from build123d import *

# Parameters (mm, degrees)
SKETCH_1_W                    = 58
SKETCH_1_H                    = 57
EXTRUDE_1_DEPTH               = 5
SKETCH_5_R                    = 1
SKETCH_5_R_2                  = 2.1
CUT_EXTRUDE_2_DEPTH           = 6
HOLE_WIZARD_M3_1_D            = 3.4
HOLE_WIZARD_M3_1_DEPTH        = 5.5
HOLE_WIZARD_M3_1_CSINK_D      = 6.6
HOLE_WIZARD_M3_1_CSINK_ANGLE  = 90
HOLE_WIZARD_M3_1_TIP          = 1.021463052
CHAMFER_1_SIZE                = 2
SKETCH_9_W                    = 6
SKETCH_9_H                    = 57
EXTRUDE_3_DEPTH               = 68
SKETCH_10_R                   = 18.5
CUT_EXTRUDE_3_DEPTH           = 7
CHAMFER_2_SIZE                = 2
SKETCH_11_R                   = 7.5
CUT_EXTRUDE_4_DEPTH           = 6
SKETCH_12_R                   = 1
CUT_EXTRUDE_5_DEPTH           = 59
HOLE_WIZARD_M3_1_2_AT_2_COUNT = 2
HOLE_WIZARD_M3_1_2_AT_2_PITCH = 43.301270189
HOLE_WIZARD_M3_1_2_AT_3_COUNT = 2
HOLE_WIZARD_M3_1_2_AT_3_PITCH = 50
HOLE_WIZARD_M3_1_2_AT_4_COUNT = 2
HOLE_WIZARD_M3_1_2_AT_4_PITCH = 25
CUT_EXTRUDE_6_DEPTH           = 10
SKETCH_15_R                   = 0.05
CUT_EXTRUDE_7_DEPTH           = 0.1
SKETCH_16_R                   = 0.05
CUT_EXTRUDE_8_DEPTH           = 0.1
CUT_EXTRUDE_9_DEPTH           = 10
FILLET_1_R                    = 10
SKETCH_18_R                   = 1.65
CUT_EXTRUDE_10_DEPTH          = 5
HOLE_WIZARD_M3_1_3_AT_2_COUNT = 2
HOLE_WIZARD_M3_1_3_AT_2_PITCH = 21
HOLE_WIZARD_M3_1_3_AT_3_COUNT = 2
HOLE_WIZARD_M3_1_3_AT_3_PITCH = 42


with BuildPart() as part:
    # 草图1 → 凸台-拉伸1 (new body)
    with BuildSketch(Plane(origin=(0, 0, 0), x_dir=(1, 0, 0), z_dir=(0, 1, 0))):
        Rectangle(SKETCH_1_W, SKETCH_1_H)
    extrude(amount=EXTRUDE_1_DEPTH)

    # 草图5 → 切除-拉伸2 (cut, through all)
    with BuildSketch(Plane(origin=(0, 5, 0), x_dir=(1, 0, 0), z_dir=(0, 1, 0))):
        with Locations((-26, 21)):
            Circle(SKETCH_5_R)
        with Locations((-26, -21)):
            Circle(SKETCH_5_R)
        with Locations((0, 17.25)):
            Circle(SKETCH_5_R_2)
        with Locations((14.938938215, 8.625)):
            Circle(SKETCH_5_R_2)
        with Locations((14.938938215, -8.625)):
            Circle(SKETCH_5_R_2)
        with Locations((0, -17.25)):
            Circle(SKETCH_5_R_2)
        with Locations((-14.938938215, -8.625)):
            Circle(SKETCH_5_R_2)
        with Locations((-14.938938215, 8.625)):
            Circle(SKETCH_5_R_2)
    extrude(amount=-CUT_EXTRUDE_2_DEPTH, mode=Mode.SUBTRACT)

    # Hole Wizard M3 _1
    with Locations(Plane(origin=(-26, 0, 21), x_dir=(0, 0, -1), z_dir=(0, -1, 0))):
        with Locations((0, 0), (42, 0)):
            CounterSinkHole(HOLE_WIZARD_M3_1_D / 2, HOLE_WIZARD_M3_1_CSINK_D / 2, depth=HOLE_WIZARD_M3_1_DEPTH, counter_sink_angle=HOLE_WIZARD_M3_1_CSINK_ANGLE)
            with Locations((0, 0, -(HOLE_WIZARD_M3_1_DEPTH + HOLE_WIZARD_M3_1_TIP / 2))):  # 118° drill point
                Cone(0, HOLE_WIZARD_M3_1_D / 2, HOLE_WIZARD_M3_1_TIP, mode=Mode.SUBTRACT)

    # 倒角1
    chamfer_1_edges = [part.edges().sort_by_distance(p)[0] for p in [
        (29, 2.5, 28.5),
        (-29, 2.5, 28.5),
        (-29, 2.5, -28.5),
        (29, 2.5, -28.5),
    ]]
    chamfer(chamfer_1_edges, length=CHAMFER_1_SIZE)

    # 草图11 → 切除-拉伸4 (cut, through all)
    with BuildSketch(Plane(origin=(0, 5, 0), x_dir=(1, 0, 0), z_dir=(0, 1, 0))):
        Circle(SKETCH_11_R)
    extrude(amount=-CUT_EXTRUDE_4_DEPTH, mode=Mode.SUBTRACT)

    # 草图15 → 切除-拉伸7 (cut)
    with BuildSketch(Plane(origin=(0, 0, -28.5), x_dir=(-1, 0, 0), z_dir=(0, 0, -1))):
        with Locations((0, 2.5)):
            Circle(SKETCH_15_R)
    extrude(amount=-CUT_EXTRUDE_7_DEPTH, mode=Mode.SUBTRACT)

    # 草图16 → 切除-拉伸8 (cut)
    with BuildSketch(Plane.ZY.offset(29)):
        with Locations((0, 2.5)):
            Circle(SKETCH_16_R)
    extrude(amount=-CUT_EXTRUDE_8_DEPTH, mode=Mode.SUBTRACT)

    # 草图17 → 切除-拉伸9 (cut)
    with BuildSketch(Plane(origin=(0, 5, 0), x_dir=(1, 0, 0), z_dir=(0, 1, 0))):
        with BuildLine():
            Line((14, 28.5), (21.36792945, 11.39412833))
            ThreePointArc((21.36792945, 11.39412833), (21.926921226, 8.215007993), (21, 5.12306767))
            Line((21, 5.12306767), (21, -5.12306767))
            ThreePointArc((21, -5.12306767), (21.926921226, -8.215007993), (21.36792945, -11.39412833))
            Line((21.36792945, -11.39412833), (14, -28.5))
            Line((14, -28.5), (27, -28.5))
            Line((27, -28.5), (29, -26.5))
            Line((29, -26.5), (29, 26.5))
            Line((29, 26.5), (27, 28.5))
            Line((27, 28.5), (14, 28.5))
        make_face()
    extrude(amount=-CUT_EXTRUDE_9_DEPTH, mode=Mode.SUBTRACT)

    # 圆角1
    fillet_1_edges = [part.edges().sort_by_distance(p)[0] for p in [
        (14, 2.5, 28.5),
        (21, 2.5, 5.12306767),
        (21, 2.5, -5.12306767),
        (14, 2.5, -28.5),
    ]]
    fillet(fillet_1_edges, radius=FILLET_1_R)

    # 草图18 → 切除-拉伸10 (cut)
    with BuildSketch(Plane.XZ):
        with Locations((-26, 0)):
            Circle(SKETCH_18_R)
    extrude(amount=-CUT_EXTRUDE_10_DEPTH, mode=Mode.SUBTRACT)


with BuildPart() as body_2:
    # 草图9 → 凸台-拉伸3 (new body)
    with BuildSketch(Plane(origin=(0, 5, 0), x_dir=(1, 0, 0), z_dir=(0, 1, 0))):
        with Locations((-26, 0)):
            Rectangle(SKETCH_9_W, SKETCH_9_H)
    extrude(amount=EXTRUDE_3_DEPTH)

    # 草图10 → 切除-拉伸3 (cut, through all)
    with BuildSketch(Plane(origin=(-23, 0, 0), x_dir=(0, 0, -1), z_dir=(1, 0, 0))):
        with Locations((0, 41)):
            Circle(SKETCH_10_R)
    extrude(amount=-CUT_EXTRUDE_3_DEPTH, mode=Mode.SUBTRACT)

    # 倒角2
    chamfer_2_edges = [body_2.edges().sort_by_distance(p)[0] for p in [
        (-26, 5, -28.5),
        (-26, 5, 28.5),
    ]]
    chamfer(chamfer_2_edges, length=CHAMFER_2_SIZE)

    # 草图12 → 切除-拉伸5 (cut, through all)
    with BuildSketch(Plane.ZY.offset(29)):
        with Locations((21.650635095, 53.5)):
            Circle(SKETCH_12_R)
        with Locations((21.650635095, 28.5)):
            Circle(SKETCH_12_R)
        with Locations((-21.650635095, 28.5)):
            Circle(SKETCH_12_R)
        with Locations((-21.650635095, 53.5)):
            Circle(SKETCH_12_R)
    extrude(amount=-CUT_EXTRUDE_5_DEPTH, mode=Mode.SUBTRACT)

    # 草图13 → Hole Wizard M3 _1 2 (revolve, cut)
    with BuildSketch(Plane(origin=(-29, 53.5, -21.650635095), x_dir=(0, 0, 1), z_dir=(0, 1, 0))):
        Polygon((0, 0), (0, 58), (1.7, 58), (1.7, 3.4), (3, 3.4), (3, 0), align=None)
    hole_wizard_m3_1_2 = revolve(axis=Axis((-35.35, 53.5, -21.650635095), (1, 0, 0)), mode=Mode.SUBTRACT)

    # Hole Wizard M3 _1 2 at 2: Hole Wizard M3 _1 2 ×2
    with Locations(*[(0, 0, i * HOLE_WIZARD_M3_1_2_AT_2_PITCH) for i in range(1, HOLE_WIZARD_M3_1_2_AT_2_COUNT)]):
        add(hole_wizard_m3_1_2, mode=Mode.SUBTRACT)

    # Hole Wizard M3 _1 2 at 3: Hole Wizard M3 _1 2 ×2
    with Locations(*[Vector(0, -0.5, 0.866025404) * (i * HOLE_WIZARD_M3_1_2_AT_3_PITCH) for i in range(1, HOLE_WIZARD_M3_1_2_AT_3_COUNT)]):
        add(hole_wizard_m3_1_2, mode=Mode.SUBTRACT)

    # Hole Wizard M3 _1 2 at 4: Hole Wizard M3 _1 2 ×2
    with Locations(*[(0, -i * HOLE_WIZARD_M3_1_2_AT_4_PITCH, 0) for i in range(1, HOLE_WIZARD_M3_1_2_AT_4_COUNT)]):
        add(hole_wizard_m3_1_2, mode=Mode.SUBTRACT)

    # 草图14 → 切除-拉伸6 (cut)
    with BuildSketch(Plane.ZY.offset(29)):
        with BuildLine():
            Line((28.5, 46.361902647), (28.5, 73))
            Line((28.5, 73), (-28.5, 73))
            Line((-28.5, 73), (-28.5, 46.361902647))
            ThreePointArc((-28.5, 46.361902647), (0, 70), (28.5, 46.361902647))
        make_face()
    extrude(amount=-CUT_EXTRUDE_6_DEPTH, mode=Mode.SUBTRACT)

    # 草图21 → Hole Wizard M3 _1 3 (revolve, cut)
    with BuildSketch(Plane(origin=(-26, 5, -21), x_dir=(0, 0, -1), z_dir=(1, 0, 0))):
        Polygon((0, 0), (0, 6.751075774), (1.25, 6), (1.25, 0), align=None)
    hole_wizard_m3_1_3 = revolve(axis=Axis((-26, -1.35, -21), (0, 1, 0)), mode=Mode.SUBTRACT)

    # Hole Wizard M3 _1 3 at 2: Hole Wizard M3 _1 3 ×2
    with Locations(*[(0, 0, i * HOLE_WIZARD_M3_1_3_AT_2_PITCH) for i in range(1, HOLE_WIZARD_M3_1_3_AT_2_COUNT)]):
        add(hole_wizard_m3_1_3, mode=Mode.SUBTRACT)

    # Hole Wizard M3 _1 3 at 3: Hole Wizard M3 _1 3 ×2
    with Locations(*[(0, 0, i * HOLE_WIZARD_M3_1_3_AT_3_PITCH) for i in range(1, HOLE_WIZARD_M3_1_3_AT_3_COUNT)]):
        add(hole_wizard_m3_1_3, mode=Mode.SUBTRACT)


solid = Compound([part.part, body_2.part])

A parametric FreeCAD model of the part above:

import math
import FreeCAD as App
import Part
import Sketcher
from FreeCAD import Vector
Q = App.Units.Quantity


def edges_at(feature, points):
    """Names of the edges that pass closest to the given points."""
    edges = feature.Shape.Edges
    near = lambda p: min(range(len(edges)), key=lambda i: edges[i].distToShape(Part.Vertex(*p))[0])
    return sorted({f"Edge{near(p) + 1}" for p in points})


def add_polygon(sketch, points):
    """Adds a closed chain of lines whose ends are joined by coincident constraints."""
    first, n = sketch.GeometryCount, len(points)
    for a, b in zip(points, points[1:] + points[:1]):
        sketch.addGeometry(Part.LineSegment(App.Vector(*a, 0), App.Vector(*b, 0)), False)
    for i in range(n):
        sketch.addConstraint(Sketcher.Constraint("Coincident", first + i, 2, first + (i + 1) % n, 1))

doc = App.newDocument("Part")
body = doc.addObject("PartDesign::Body", "Body")

# Sketch on XZ plane
sketch1 = body.newObject("Sketcher::SketchObject", "Sketch")
sketch1.AttachmentSupport = (doc.getObject("XZ_Plane"), [""])
sketch1.MapMode = "FlatFace"
add_polygon(sketch1, [(-29, -28.5), (-29, 28.5), (29, 28.5), (29, -28.5)])  # lines 0-3
sketch1.addConstraint([
    Sketcher.Constraint("Vertical", 0),
    Sketcher.Constraint("Horizontal", 1),
    Sketcher.Constraint("Vertical", 2),
    Sketcher.Constraint("Horizontal", 3),
    Sketcher.Constraint("Symmetric", 0, 2, 2, 2, -1, 1),
    Sketcher.Constraint("DistanceX", 1, 1, 1, 2, 58.0),
    Sketcher.Constraint("DistanceY", 0, 1, 0, 2, 57.0),
])
pad1 = body.newObject("PartDesign::Pad", "Pad")
pad1.Profile = sketch1
pad1.Length = 5
pad1.Reversed = True

# Sketch on XZ plane
sketch2 = body.newObject("Sketcher::SketchObject", "Sketch001")
sketch2.AttachmentSupport = (doc.getObject("XZ_Plane"), [""])
sketch2.MapMode = "FlatFace"
sketch2.AttachmentOffset = App.Placement(Vector(0, 0, -5), App.Rotation())
sketch2.addGeometry([
    Part.Circle(Vector(-26, -21, 0), Vector(0, 0, 1), 1),  # 0
    Part.Circle(Vector(-26, 21, 0), Vector(0, 0, 1), 1),  # 1
    Part.Circle(Vector(0, -17.25, 0), Vector(0, 0, 1), 2.1),  # 2
    Part.Circle(Vector(14.938938, -8.625, 0), Vector(0, 0, 1), 2.1),  # 3
    Part.Circle(Vector(14.938938, 8.625, 0), Vector(0, 0, 1), 2.1),  # 4
    Part.Circle(Vector(0, 17.25, 0), Vector(0, 0, 1), 2.1),  # 5
    Part.Circle(Vector(-14.938938, 8.625, 0), Vector(0, 0, 1), 2.1),  # 6
    Part.Circle(Vector(-14.938938, -8.625, 0), Vector(0, 0, 1), 2.1),  # 7
], False)
sketch2.addConstraint([
    Sketcher.Constraint("Equal", 0, 1),
    Sketcher.Constraint("Equal", 2, 3),
    Sketcher.Constraint("Equal", 3, 4),
    Sketcher.Constraint("Equal", 4, 5),
    Sketcher.Constraint("Equal", 5, 6),
    Sketcher.Constraint("Equal", 6, 7),
    Sketcher.Constraint("Symmetric", 2, 3, 5, 3, -1, 1),
    Sketcher.Constraint("Symmetric", 3, 3, 6, 3, -1, 1),
    Sketcher.Constraint("Symmetric", 4, 3, 7, 3, -1, 1),
    Sketcher.Constraint("Symmetric", 4, 3, 6, 3, -2),
    Sketcher.Constraint("Symmetric", 0, 3, 1, 3, -1),
    Sketcher.Constraint("PointOnObject", 2, 3, -2),
    Sketcher.Constraint("Diameter", 0, 2.0),
    Sketcher.Constraint("Diameter", 2, 4.2),
    Sketcher.Constraint("DistanceX", 0, 3, -1, 1, 26.0),
    Sketcher.Constraint("DistanceY", 0, 3, -1, 1, 21.0),
    Sketcher.Constraint("DistanceY", 2, 3, 5, 3, 34.5),
    Sketcher.Constraint("DistanceY", 3, 3, 4, 3, 17.25),
    Sketcher.Constraint("DistanceX", -1, 1, 3, 3, 14.938938),
])
pocket1 = body.newObject("PartDesign::Pocket", "Pocket")
pocket1.Profile = sketch2
pocket1.Type = "ThroughAll"
pocket1.Reversed = True

# Sketch on XZ plane
sketch3 = body.newObject("Sketcher::SketchObject", "Sketch002")
sketch3.AttachmentSupport = (doc.getObject("XZ_Plane"), [""])
sketch3.MapMode = "FlatFace"
sketch3.addGeometry([
    Part.Circle(Vector(-26, 21, 0), Vector(0, 0, 1), 1.7),
    Part.Circle(Vector(-26, -21, 0), Vector(0, 0, 1), 1.7),
], False)
sketch3.addConstraint([
    Sketcher.Constraint("Equal", 0, 1),
    Sketcher.Constraint("Symmetric", 0, 3, 1, 3, -1),
    Sketcher.Constraint("Diameter", 0, 3.4),
    Sketcher.Constraint("DistanceX", 0, 3, -1, 1, 26.0),
    Sketcher.Constraint("DistanceY", -1, 1, 0, 3, 21.0),
])
doc.recompute()
hole = body.newObject("PartDesign::Hole", "Hole")
hole.Profile = sketch3
hole.ThreadType = "None"
hole.Diameter = 3.4
hole.DepthType = "Dimension"
hole.Depth = 5.5
hole.DrillPoint = "Angled"
hole.DrillPointAngle = 118
hole.HoleCutType = "Countersink"
hole.HoleCutDiameter = 6.6
hole.HoleCutCountersinkAngle = 90
doc.recompute()

chamfer = body.newObject("PartDesign::Chamfer", "Chamfer")
chamfer.Base = (hole, edges_at(hole, [
    (29, 2.5, 28.5),
    (-29, 2.5, 28.5),
    (-29, 2.5, -28.5),
    (29, 2.5, -28.5),
]))
chamfer.Size = 2

# Sketch on XZ plane
sketch4 = body.newObject("Sketcher::SketchObject", "Sketch003")
sketch4.AttachmentSupport = (doc.getObject("XZ_Plane"), [""])
sketch4.MapMode = "FlatFace"
sketch4.AttachmentOffset = App.Placement(Vector(0, 0, -5), App.Rotation())
sketch4.addGeometry(Part.Circle(Vector(0, 0, 0), Vector(0, 0, 1), 7.5), False)
sketch4.addConstraint([
    Sketcher.Constraint("Coincident", 0, 3, -1, 1),
    Sketcher.Constraint("Diameter", 0, 15.0),
])
pocket2 = body.newObject("PartDesign::Pocket", "Pocket001")
pocket2.Profile = sketch4
pocket2.Type = "ThroughAll"
pocket2.Reversed = True

# Sketch on XY plane
sketch5 = body.newObject("Sketcher::SketchObject", "Sketch004")
sketch5.AttachmentSupport = (doc.getObject("XY_Plane"), [""])
sketch5.MapMode = "FlatFace"
sketch5.AttachmentOffset = App.Placement(Vector(0, 0, -28.5), App.Rotation())
sketch5.addGeometry(Part.Circle(Vector(0, 2.5, 0), Vector(0, 0, 1), 0.05), False)
sketch5.addConstraint([
    Sketcher.Constraint("PointOnObject", 0, 3, -2),
    Sketcher.Constraint("Diameter", 0, 0.1),
    Sketcher.Constraint("DistanceY", -1, 1, 0, 3, 2.5),
])
pocket3 = body.newObject("PartDesign::Pocket", "Pocket002")
pocket3.Profile = sketch5
pocket3.Length = 0.1
pocket3.Reversed = True

# Sketch on YZ plane
sketch6 = body.newObject("Sketcher::SketchObject", "Sketch005")
sketch6.AttachmentSupport = (doc.getObject("YZ_Plane"), [""])
sketch6.MapMode = "FlatFace"
sketch6.AttachmentOffset = App.Placement(Vector(0, 0, -29), App.Rotation())
sketch6.addGeometry(Part.Circle(Vector(2.5, 0, 0), Vector(0, 0, 1), 0.05), False)
sketch6.addConstraint([
    Sketcher.Constraint("PointOnObject", 0, 3, -1),
    Sketcher.Constraint("Diameter", 0, 0.1),
    Sketcher.Constraint("DistanceX", -1, 1, 0, 3, 2.5),
])
pocket4 = body.newObject("PartDesign::Pocket", "Pocket003")
pocket4.Profile = sketch6
pocket4.Length = 0.1
pocket4.Reversed = True

# Sketch on XZ plane
sketch7 = body.newObject("Sketcher::SketchObject", "Sketch006")
sketch7.AttachmentSupport = (doc.getObject("XZ_Plane"), [""])
sketch7.MapMode = "FlatFace"
sketch7.AttachmentOffset = App.Placement(Vector(0, 0, -5), App.Rotation())
sketch7.addGeometry([
    Part.LineSegment(Vector(14, -28.5, 0), Vector(21.367929, -11.394128, 0)),  # 0
    Part.ArcOfCircle(Part.Circle(Vector(14.938938, -8.625, 0), Vector(0, 0, 1), 7), math.radians(-23.302761), math.radians(30.018265)),  # 1
    Part.LineSegment(Vector(21, -5.123068, 0), Vector(21, 5.123068, 0)),  # 2
    Part.ArcOfCircle(Part.Circle(Vector(14.938938, 8.625, 0), Vector(0, 0, 1), 7), math.radians(-30.018265), math.radians(23.302761)),  # 3
    Part.LineSegment(Vector(21.367929, 11.394128, 0), Vector(14, 28.5, 0)),  # 4
    Part.LineSegment(Vector(14, 28.5, 0), Vector(27, 28.5, 0)),  # 5
    Part.LineSegment(Vector(27, 28.5, 0), Vector(29, 26.5, 0)),  # 6
    Part.LineSegment(Vector(29, 26.5, 0), Vector(29, -26.5, 0)),  # 7
    Part.LineSegment(Vector(29, -26.5, 0), Vector(27, -28.5, 0)),  # 8
    Part.LineSegment(Vector(27, -28.5, 0), Vector(14, -28.5, 0)),  # 9
], False)
sketch7.addConstraint([
    Sketcher.Constraint("Tangent", 0, 2, 1, 1),
    Sketcher.Constraint("Coincident", 1, 2, 2, 1),
    Sketcher.Constraint("Coincident", 2, 2, 3, 1),
    Sketcher.Constraint("Tangent", 3, 2, 4, 1),
    Sketcher.Constraint("Coincident", 4, 2, 5, 1),
    Sketcher.Constraint("Coincident", 5, 2, 6, 1),
    Sketcher.Constraint("Coincident", 6, 2, 7, 1),
    Sketcher.Constraint("Coincident", 7, 2, 8, 1),
    Sketcher.Constraint("Coincident", 8, 2, 9, 1),
    Sketcher.Constraint("Coincident", 9, 2, 0, 1),
    Sketcher.Constraint("Vertical", 2),
    Sketcher.Constraint("Horizontal", 5),
    Sketcher.Constraint("Vertical", 7),
    Sketcher.Constraint("Horizontal", 9),
    Sketcher.Constraint("Equal", 1, 3),
    Sketcher.Constraint("Symmetric", 1, 3, 3, 3, -1),
    Sketcher.Constraint("Symmetric", 5, 2, 8, 2, -1),
    Sketcher.Constraint("Perpendicular", 6, 8),
    Sketcher.Constraint("Vertical", 0, 2, 3, 2),
    Sketcher.Constraint("Equal", 6, 8),
    Sketcher.Constraint("Radius", 1, 7.0),
    Sketcher.Constraint("DistanceX", 5, 1, 5, 2, 13.0),
    Sketcher.Constraint("DistanceY", 7, 2, 7, 1, 53.0),
    Sketcher.Constraint("DistanceX", -1, 1, 1, 2, 21.0),
    Sketcher.Constraint("DistanceX", -1, 1, 4, 2, 14.0),
    Sketcher.Constraint("DistanceX", -1, 1, 6, 2, 29.0),
    Sketcher.Constraint("DistanceY", 1, 3, 3, 3, 17.25),
    Sketcher.Constraint("DistanceY", 2, 1, 2, 2, 10.246135),
])
pocket5 = body.newObject("PartDesign::Pocket", "Pocket004")
pocket5.Profile = sketch7
pocket5.Length = 10
pocket5.Reversed = True
doc.recompute()

fillet = body.newObject("PartDesign::Fillet", "Fillet")
fillet.Base = (pocket5, edges_at(pocket5, [
    (14, 2.5, 28.5),
    (21, 2.5, 5.123),
    (21, 2.5, -5.123),
    (14, 2.5, -28.5),
]))
fillet.Radius = 10

# Sketch on XZ plane
sketch8 = body.newObject("Sketcher::SketchObject", "Sketch007")
sketch8.AttachmentSupport = (doc.getObject("XZ_Plane"), [""])
sketch8.MapMode = "FlatFace"
sketch8.addGeometry(Part.Circle(Vector(-26, 0, 0), Vector(0, 0, 1), 1.65), False)
sketch8.addConstraint([
    Sketcher.Constraint("PointOnObject", 0, 3, -1),
    Sketcher.Constraint("Diameter", 0, 3.3),
    Sketcher.Constraint("DistanceX", 0, 3, -1, 1, 26.0),
])
pocket6 = body.newObject("PartDesign::Pocket", "Pocket005")
pocket6.Profile = sketch8
pocket6.Length = 5
body2 = doc.addObject("PartDesign::Body", "Body001")

# Sketch on XZ plane
sketch9 = body2.newObject("Sketcher::SketchObject", "Sketch008")
sketch9.AttachmentSupport = (doc.getObject("XZ_Plane001"), [""])
sketch9.MapMode = "FlatFace"
sketch9.AttachmentOffset = App.Placement(Vector(0, 0, -5), App.Rotation())
add_polygon(sketch9, [(-29, -28.5), (-29, 28.5), (-23, 28.5), (-23, -28.5)])  # lines 0-3
sketch9.addConstraint([
    Sketcher.Constraint("Vertical", 0),
    Sketcher.Constraint("Horizontal", 1),
    Sketcher.Constraint("Vertical", 2),
    Sketcher.Constraint("Horizontal", 3),
    Sketcher.Constraint("DistanceX", 1, 1, 1, 2, 6.0),
    Sketcher.Constraint("DistanceY", 0, 1, 0, 2, 57.0),
    Sketcher.Constraint("DistanceX", 0, 2, -1, 1, 29.0),
    Sketcher.Constraint("DistanceY", -1, 1, 0, 2, 28.5),
])
pad2 = body2.newObject("PartDesign::Pad", "Pad001")
pad2.Profile = sketch9
pad2.Length = 68
pad2.Reversed = True

# Sketch on YZ plane
sketch10 = body2.newObject("Sketcher::SketchObject", "Sketch009")
sketch10.AttachmentSupport = (doc.getObject("YZ_Plane001"), [""])
sketch10.MapMode = "FlatFace"
sketch10.AttachmentOffset = App.Placement(Vector(0, 0, -23), App.Rotation())
sketch10.addGeometry(Part.Circle(Vector(41, 0, 0), Vector(0, 0, 1), 18.5), False)
sketch10.addConstraint([
    Sketcher.Constraint("PointOnObject", 0, 3, -1),
    Sketcher.Constraint("Diameter", 0, 37.0),
    Sketcher.Constraint("DistanceX", -1, 1, 0, 3, 41.0),
])
pocket7 = body2.newObject("PartDesign::Pocket", "Pocket006")
pocket7.Profile = sketch10
pocket7.Type = "ThroughAll"
doc.recompute()

chamfer2 = body2.newObject("PartDesign::Chamfer", "Chamfer001")
chamfer2.Base = (pocket7, edges_at(pocket7, [(-26, 5, -28.5), (-26, 5, 28.5)]))
chamfer2.Size = 2

# Sketch on YZ plane
sketch11 = body2.newObject("Sketcher::SketchObject", "Sketch010")
sketch11.AttachmentSupport = (doc.getObject("YZ_Plane001"), [""])
sketch11.MapMode = "FlatFace"
sketch11.AttachmentOffset = App.Placement(Vector(0, 0, -29), App.Rotation())
sketch11.addGeometry([
    Part.Circle(Vector(53.5, 21.650635, 0), Vector(0, 0, 1), 1),
    Part.Circle(Vector(28.5, 21.650635, 0), Vector(0, 0, 1), 1),
    Part.Circle(Vector(28.5, -21.650635, 0), Vector(0, 0, 1), 1),
    Part.Circle(Vector(53.5, -21.650635, 0), Vector(0, 0, 1), 1),
], False)
sketch11.addConstraint([
    Sketcher.Constraint("Equal", 0, 1),
    Sketcher.Constraint("Equal", 1, 2),
    Sketcher.Constraint("Equal", 2, 3),
    Sketcher.Constraint("Symmetric", 1, 3, 2, 3, -1),
    Sketcher.Constraint("Symmetric", 0, 3, 3, 3, -1),
    Sketcher.Constraint("Horizontal", 0, 3, 1, 3),
    Sketcher.Constraint("Diameter", 0, 2.0),
    Sketcher.Constraint("DistanceX", 1, 3, 0, 3, 25.0),
    Sketcher.Constraint("DistanceX", -1, 1, 0, 3, 53.5),
    Sketcher.Constraint("DistanceY", 2, 3, 1, 3, 43.30127),
])
pocket8 = body2.newObject("PartDesign::Pocket", "Pocket007")
pocket8.Profile = sketch11
pocket8.Type = "ThroughAll"
pocket8.Reversed = True

# Sketch on XZ plane
sketch12 = body2.newObject("Sketcher::SketchObject", "Sketch011")
sketch12.AttachmentSupport = (doc.getObject("XZ_Plane001"), [""])
sketch12.MapMode = "FlatFace"
sketch12.AttachmentOffset = App.Placement(Vector(0, 0, -53.5), App.Rotation())
add_polygon(sketch12, [(29, -21.650635), (-29, -21.650635), (-29, -18.650635), (-25.6, -18.650635), (-25.6, -19.950635), (29, -19.950635)])  # lines 0-5
sketch12.addGeometry(Part.LineSegment(Vector(-29, -21.650635, 0), Vector(29, -21.650635, 0)), True)  # axis
sketch12.addConstraint([
    Sketcher.Constraint("Horizontal", 0),
    Sketcher.Constraint("Vertical", 1),
    Sketcher.Constraint("Horizontal", 2),
    Sketcher.Constraint("Vertical", 3),
    Sketcher.Constraint("Horizontal", 4),
    Sketcher.Constraint("Vertical", 5),
    Sketcher.Constraint("Horizontal", 6),
    Sketcher.Constraint("Coincident", 6, 1, 0, 2),
    Sketcher.Constraint("Vertical", 4, 2, 6, 2),
    Sketcher.Constraint("DistanceX", 0, 2, 0, 1, 58.0),
    Sketcher.Constraint("DistanceY", 1, 1, 1, 2, 3.0),
    Sketcher.Constraint("DistanceX", 2, 1, 2, 2, 3.4),
    Sketcher.Constraint("DistanceY", 3, 2, 3, 1, 1.3),
    Sketcher.Constraint("DistanceX", 0, 2, -1, 1, 29.0),
    Sketcher.Constraint("DistanceY", 0, 2, -1, 1, 21.650635),
])
groove = body2.newObject("PartDesign::Groove", "Groove")
groove.Profile = sketch12
groove.ReferenceAxis = (sketch12, ["Axis0"])
groove.Angle = 360
doc.recompute()

linearpattern = body2.newObject("PartDesign::LinearPattern", "LinearPattern")
linearpattern.Originals = [groove]
linearpattern.Direction = (doc.getObject("Z_Axis001"), [""])
linearpattern.Mode = "offset"
linearpattern.Offset = 43.30127
linearpattern.Occurrences = 2
body2.Tip = linearpattern
doc.recompute()

datumline = body2.newObject("PartDesign::Line", "DatumLine")
datumline.Placement = App.Placement(Vector(0, 0, 0), App.Rotation(Vector(0, 0, 1), Vector(0, -0.5, 0.866025404)))
linearpattern2 = body2.newObject("PartDesign::LinearPattern", "LinearPattern001")
linearpattern2.Originals = [groove]
linearpattern2.Direction = (datumline, [""])
linearpattern2.Mode = "offset"
linearpattern2.Offset = 50
linearpattern2.Occurrences = 2
body2.Tip = linearpattern2
doc.recompute()

linearpattern3 = body2.newObject("PartDesign::LinearPattern", "LinearPattern002")
linearpattern3.Originals = [groove]
linearpattern3.Direction = (doc.getObject("Y_Axis001"), [""])
linearpattern3.Mode = "offset"
linearpattern3.Offset = 25
linearpattern3.Occurrences = 2
linearpattern3.Reversed = True
body2.Tip = linearpattern3

# Sketch on YZ plane
sketch13 = body2.newObject("Sketcher::SketchObject", "Sketch012")
sketch13.AttachmentSupport = (doc.getObject("YZ_Plane001"), [""])
sketch13.MapMode = "FlatFace"
sketch13.AttachmentOffset = App.Placement(Vector(0, 0, -29), App.Rotation())
sketch13.addGeometry([
    Part.LineSegment(Vector(46.361903, 28.5, 0), Vector(73, 28.5, 0)),
    Part.LineSegment(Vector(73, 28.5, 0), Vector(73, -28.5, 0)),
    Part.LineSegment(Vector(73, -28.5, 0), Vector(46.361903, -28.5, 0)),
    Part.ArcOfCircle(Part.Circle(Vector(41, 0, 0), Vector(0, 0, 1), 29), math.radians(-79.345095), math.radians(79.345095)),
], False)
sketch13.addConstraint([
    Sketcher.Constraint("Coincident", 0, 2, 1, 1),
    Sketcher.Constraint("Coincident", 1, 2, 2, 1),
    Sketcher.Constraint("Coincident", 2, 2, 3, 1),
    Sketcher.Constraint("Coincident", 3, 2, 0, 1),
    Sketcher.Constraint("Horizontal", 0),
    Sketcher.Constraint("Vertical", 1),
    Sketcher.Constraint("Horizontal", 2),
    Sketcher.Constraint("Symmetric", 2, 2, 3, 2, -1),
    Sketcher.Constraint("Radius", 3, 29.0),
    Sketcher.Constraint("DistanceY", 1, 2, 1, 1, 57.0),
    Sketcher.Constraint("DistanceX", -1, 1, 3, 3, 41.0),
    Sketcher.Constraint("DistanceX", -1, 1, 0, 2, 73.0),
])
pocket9 = body2.newObject("PartDesign::Pocket", "Pocket008")
pocket9.Profile = sketch13
pocket9.Length = 10
pocket9.Reversed = True

# Sketch on YZ plane
sketch14 = body2.newObject("Sketcher::SketchObject", "Sketch013")
sketch14.AttachmentSupport = (doc.getObject("YZ_Plane001"), [""])
sketch14.MapMode = "FlatFace"
sketch14.AttachmentOffset = App.Placement(Vector(0, 0, -26), App.Rotation())
add_polygon(sketch14, [(11.751076, -21), (5, -21), (5, -22.25), (11, -22.25)])  # lines 0-3
sketch14.addGeometry(Part.LineSegment(Vector(5, -21, 0), Vector(11.751076, -21, 0)), True)  # axis
sketch14.addConstraint([
    Sketcher.Constraint("Horizontal", 0),
    Sketcher.Constraint("Vertical", 1),
    Sketcher.Constraint("Horizontal", 2),
    Sketcher.Constraint("Horizontal", 4),
    Sketcher.Constraint("Coincident", 4, 1, 0, 2),
    Sketcher.Constraint("Equal", 0, 4),
    Sketcher.Constraint("DistanceX", 2, 1, 2, 2, 6.0),
    Sketcher.Constraint("Angle", 3, Q("59 deg")),
    Sketcher.Constraint("DistanceX", -1, 1, 0, 2, 5.0),
    Sketcher.Constraint("DistanceY", 0, 2, -1, 1, 21.0),
    Sketcher.Constraint("DistanceY", 1, 2, 1, 1, 1.25),
])
groove2 = body2.newObject("PartDesign::Groove", "Groove001")
groove2.Profile = sketch14
groove2.ReferenceAxis = (sketch14, ["Axis0"])
groove2.Angle = 360
doc.recompute()

linearpattern4 = body2.newObject("PartDesign::LinearPattern", "LinearPattern003")
linearpattern4.Originals = [groove2]
linearpattern4.Direction = (doc.getObject("Z_Axis001"), [""])
linearpattern4.Mode = "offset"
linearpattern4.Offset = 21
linearpattern4.Occurrences = 2
body2.Tip = linearpattern4
doc.recompute()

linearpattern5 = body2.newObject("PartDesign::LinearPattern", "LinearPattern004")
linearpattern5.Originals = [groove2]
linearpattern5.Direction = (doc.getObject("Z_Axis001"), [""])
linearpattern5.Mode = "offset"
linearpattern5.Offset = 42
linearpattern5.Occurrences = 2
body2.Tip = linearpattern5

doc.recompute()
